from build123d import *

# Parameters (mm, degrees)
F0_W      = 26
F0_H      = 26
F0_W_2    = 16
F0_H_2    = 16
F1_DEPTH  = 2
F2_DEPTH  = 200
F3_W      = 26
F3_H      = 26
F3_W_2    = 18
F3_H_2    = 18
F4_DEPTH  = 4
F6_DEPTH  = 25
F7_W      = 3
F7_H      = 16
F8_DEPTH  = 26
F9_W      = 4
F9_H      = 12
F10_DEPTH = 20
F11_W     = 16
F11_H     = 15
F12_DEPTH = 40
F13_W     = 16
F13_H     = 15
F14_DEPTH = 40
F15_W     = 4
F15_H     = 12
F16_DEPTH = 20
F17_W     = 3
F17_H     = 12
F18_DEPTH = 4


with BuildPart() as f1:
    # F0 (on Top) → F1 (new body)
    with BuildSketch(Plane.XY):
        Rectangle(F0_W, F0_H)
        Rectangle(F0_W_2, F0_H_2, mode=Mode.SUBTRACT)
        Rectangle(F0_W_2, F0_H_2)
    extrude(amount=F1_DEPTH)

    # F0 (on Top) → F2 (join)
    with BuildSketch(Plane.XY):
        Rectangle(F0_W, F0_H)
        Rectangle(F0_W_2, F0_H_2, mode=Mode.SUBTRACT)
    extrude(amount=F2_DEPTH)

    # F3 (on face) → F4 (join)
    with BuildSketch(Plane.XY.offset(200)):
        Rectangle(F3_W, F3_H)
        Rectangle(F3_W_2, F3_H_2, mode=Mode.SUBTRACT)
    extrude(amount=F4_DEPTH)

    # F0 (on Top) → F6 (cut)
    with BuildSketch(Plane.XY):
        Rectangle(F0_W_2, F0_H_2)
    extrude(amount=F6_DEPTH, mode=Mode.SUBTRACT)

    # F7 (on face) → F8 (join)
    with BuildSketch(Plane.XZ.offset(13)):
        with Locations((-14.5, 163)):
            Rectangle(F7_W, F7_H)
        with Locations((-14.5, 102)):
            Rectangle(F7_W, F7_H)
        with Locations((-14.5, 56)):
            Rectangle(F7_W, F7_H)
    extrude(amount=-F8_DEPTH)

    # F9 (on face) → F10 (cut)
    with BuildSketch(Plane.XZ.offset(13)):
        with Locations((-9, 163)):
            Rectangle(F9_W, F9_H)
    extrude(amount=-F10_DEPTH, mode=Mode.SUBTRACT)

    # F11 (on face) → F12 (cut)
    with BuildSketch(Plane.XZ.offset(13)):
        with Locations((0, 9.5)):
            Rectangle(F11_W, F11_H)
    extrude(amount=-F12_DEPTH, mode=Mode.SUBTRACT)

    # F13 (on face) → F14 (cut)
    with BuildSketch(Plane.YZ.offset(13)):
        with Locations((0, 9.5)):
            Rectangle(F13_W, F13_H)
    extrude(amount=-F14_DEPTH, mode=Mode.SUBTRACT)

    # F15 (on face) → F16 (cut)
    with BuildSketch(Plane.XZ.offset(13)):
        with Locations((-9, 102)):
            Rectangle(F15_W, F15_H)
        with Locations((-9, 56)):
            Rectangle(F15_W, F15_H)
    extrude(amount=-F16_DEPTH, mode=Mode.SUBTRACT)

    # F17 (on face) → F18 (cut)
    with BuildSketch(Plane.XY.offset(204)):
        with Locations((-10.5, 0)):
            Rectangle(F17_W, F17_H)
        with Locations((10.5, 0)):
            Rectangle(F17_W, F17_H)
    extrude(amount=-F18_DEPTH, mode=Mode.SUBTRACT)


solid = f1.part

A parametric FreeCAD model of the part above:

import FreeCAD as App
import Part
import Sketcher

V = App.Vector


def add_polygon(sketch, points):
    """Adds a closed chain of lines whose ends are joined by coincident constraints."""
    first, n = sketch.GeometryCount, len(points)
    for a, b in zip(points, points[1:] + points[:1]):
        sketch.addGeometry(Part.LineSegment(App.Vector(*a, 0), App.Vector(*b, 0)), False)
    for i in range(n):
        sketch.addConstraint(Sketcher.Constraint("Coincident", first + i, 2, first + (i + 1) % n, 1))

doc = App.newDocument("Part")
params = doc.addObject("Spreadsheet::Sheet", "Params")
for row, (alias, value) in enumerate([
    ("sketch1_width", "26 mm"),
    ("pad1_length", "2 mm"),
    ("sketch2_width", "26 mm"),
    ("sketch2_width2", "16 mm"),
    ("pad2_length", "200 mm"),
    ("sketch3_width", "26 mm"),
    ("sketch3_width2", "18 mm"),
    ("pad3_length", "4 mm"),
    ("sketch4_width", "16 mm"),
    ("pocket1_length", "25 mm"),
    ("sketch5_width", "3 mm"),
    ("sketch5_height", "16 mm"),
    ("pad4_length", "26 mm"),
    ("sketch6_width", "4 mm"),
    ("sketch6_height", "12 mm"),
    ("pocket2_length", "20 mm"),
    ("sketch7_width", "16 mm"),
    ("sketch7_height", "15 mm"),
    ("pocket3_length", "40 mm"),
    ("sketch8_width", "16 mm"),
    ("sketch8_height", "15 mm"),
    ("pocket4_length", "40 mm"),
    ("sketch9_width", "4 mm"),
    ("sketch9_height", "12 mm"),
    ("pocket5_length", "20 mm"),
    ("sketch10_width", "3 mm"),
    ("sketch10_height", "12 mm"),
    ("pocket6_length", "4 mm"),
], start=1):
    params.set(f"A{row}", alias)
    params.set(f"B{row}", "=" + value)
    params.setAlias(f"B{row}", alias)

body = doc.addObject("PartDesign::Body", "Body")

sketch1 = doc.addObject("Sketcher::SketchObject", "Sketch")
body.addObject(sketch1)
sketch1.AttachmentSupport = (doc.XY_Plane, [""])
sketch1.MapMode = "FlatFace"
add_polygon(sketch1, [(-13, 13), (-13, -13), (13, -13), (13, 13)])
sketch1.addConstraint([
    Sketcher.Constraint("Vertical", 0),
    Sketcher.Constraint("Horizontal", 1),
    Sketcher.Constraint("Vertical", 2),
    Sketcher.Constraint("Horizontal", 3),
    Sketcher.Constraint("Symmetric", 0, 2, 2, 2, -1, 1),
    Sketcher.Constraint("Equal", 3, 0),
    Sketcher.Constraint("DistanceX", 1, 1, 1, 2, 26.0),
])
sketch1.setExpression("Constraints[10]", "Params.sketch1_width")
pad1 = doc.addObject("PartDesign::Pad", "Pad")
body.addObject(pad1)
pad1.Profile = sketch1
pad1.setExpression("Length", "Params.pad1_length")

sketch2 = doc.addObject("Sketcher::SketchObject", "Sketch001")
body.addObject(sketch2)
sketch2.AttachmentSupport = (doc.XY_Plane, [""])
sketch2.MapMode = "FlatFace"
add_polygon(sketch2, [(-13, 13), (-13, -13), (13, -13), (13, 13)])
add_polygon(sketch2, [(8, -8), (-8, -8), (-8, 8), (8, 8)])
sketch2.addConstraint([
    Sketcher.Constraint("Vertical", 0),
    Sketcher.Constraint("Horizontal", 1),
    Sketcher.Constraint("Vertical", 2),
    Sketcher.Constraint("Horizontal", 3),
    Sketcher.Constraint("Horizontal", 4),
    Sketcher.Constraint("Vertical", 5),
    Sketcher.Constraint("Horizontal", 6),
    Sketcher.Constraint("Vertical", 7),
    Sketcher.Constraint("Symmetric", 0, 2, 2, 2, -1, 1),
    Sketcher.Constraint("Symmetric", 4, 2, 6, 2, -1, 1),
    Sketcher.Constraint("Equal", 3, 0),
    Sketcher.Constraint("Equal", 6, 5),
    Sketcher.Constraint("DistanceX", 1, 1, 1, 2, 26.0),
    Sketcher.Constraint("DistanceX", 4, 2, 4, 1, 16.0),
])
sketch2.setExpression("Constraints[20]", "Params.sketch2_width")
sketch2.setExpression("Constraints[21]", "Params.sketch2_width2")
pad2 = doc.addObject("PartDesign::Pad", "Pad001")
body.addObject(pad2)
pad2.Profile = sketch2
pad2.setExpression("Length", "Params.pad2_length")

sketch3 = doc.addObject("Sketcher::SketchObject", "Sketch002")
body.addObject(sketch3)
sketch3.AttachmentSupport = (doc.XY_Plane, [""])
sketch3.MapMode = "FlatFace"
sketch3.AttachmentOffset = App.Placement(V(0, 0, 200), App.Rotation())
add_polygon(sketch3, [(-13, 13), (-13, -13), (13, -13), (13, 13)])
add_polygon(sketch3, [(9, -9), (-9, -9), (-9, 9), (9, 9)])
sketch3.addConstraint([
    Sketcher.Constraint("Vertical", 0),
    Sketcher.Constraint("Horizontal", 1),
    Sketcher.Constraint("Vertical", 2),
    Sketcher.Constraint("Horizontal", 3),
    Sketcher.Constraint("Horizontal", 4),
    Sketcher.Constraint("Vertical", 5),
    Sketcher.Constraint("Horizontal", 6),
    Sketcher.Constraint("Vertical", 7),
    Sketcher.Constraint("Symmetric", 0, 2, 2, 2, -1, 1),
    Sketcher.Constraint("Symmetric", 4, 2, 6, 2, -1, 1),
    Sketcher.Constraint("Equal", 3, 0),
    Sketcher.Constraint("Equal", 6, 5),
    Sketcher.Constraint("DistanceX", 1, 1, 1, 2, 26.0),
    Sketcher.Constraint("DistanceX", 4, 2, 4, 1, 18.0),
])
sketch3.setExpression("Constraints[20]", "Params.sketch3_width")
sketch3.setExpression("Constraints[21]", "Params.sketch3_width2")
pad3 = doc.addObject("PartDesign::Pad", "Pad002")
body.addObject(pad3)
pad3.Profile = sketch3
pad3.setExpression("Length", "Params.pad3_length")

sketch4 = doc.addObject("Sketcher::SketchObject", "Sketch003")
body.addObject(sketch4)
sketch4.AttachmentSupport = (doc.XY_Plane, [""])
sketch4.MapMode = "FlatFace"
add_polygon(sketch4, [(-8, 8), (-8, -8), (8, -8), (8, 8)])
sketch4.addConstraint([
    Sketcher.Constraint("Vertical", 0),
    Sketcher.Constraint("Horizontal", 1),
    Sketcher.Constraint("Vertical", 2),
    Sketcher.Constraint("Horizontal", 3),
    Sketcher.Constraint("Symmetric", 0, 2, 2, 2, -1, 1),
    Sketcher.Constraint("Equal", 3, 0),
    Sketcher.Constraint("DistanceX", 1, 1, 1, 2, 16.0),
])
sketch4.setExpression("Constraints[10]", "Params.sketch4_width")
pocket1 = doc.addObject("PartDesign::Pocket", "Pocket")
body.addObject(pocket1)
pocket1.Profile = sketch4
pocket1.setExpression("Length", "Params.pocket1_length")
pocket1.Reversed = True

sketch5 = doc.addObject("Sketcher::SketchObject", "Sketch004")
body.addObject(sketch5)
sketch5.AttachmentSupport = (doc.XZ_Plane, [""])
sketch5.MapMode = "FlatFace"
sketch5.AttachmentOffset = App.Placement(V(0, 0, 13), App.Rotation())
add_polygon(sketch5, [(-16, 171), (-16, 155), (-13, 155), (-13, 171)])
add_polygon(sketch5, [(-16, 110), (-16, 94), (-13, 94), (-13, 110)])
add_polygon(sketch5, [(-16, 64), (-16, 48), (-13, 48), (-13, 64)])
sketch5.addConstraint([
    Sketcher.Constraint("Vertical", 0),
    Sketcher.Constraint("Horizontal", 1),
    Sketcher.Constraint("Vertical", 2),
    Sketcher.Constraint("Horizontal", 3),
    Sketcher.Constraint("Vertical", 4),
    Sketcher.Constraint("Horizontal", 5),
    Sketcher.Constraint("Vertical", 6),
    Sketcher.Constraint("Horizontal", 7),
    Sketcher.Constraint("Vertical", 8),
    Sketcher.Constraint("Horizontal", 9),
    Sketcher.Constraint("Vertical", 10),
    Sketcher.Constraint("Horizontal", 11),
    Sketcher.Constraint("Vertical", 3, 2, 4, 2),
    Sketcher.Constraint("Vertical", 2, 2, 5, 2),
    Sketcher.Constraint("Vertical", 7, 2, 8, 2),
    Sketcher.Constraint("Vertical", 6, 2, 9, 2),
    Sketcher.Constraint("Equal", 2, 4),
    Sketcher.Constraint("Equal", 6, 8),
    Sketcher.Constraint("DistanceX", 1, 1, 1, 2, 3.0),
    Sketcher.Constraint("DistanceY", 0, 2, 0, 1, 16.0),
    Sketcher.Constraint("DistanceX", 0, 2, -1, 1, 16.0),
    Sketcher.Constraint("DistanceY", -1, 1, 0, 2, 155.0),
    Sketcher.Constraint("DistanceY", -1, 1, 4, 2, 94.0),
    Sketcher.Constraint("DistanceY", -1, 1, 8, 2, 48.0),
])
sketch5.setExpression("Constraints[30]", "Params.sketch5_width")
sketch5.setExpression("Constraints[31]", "Params.sketch5_height")
pad4 = doc.addObject("PartDesign::Pad", "Pad003")
body.addObject(pad4)
pad4.Profile = sketch5
pad4.setExpression("Length", "Params.pad4_length")
pad4.Reversed = True

sketch6 = doc.addObject("Sketcher::SketchObject", "Sketch005")
body.addObject(sketch6)
sketch6.AttachmentSupport = (doc.XZ_Plane, [""])
sketch6.MapMode = "FlatFace"
sketch6.AttachmentOffset = App.Placement(V(0, 0, 13), App.Rotation())
add_polygon(sketch6, [(-11, 169), (-11, 157), (-7, 157), (-7, 169)])
sketch6.addConstraint([
    Sketcher.Constraint("Vertical", 0),
    Sketcher.Constraint("Horizontal", 1),
    Sketcher.Constraint("Vertical", 2),
    Sketcher.Constraint("Horizontal", 3),
    Sketcher.Constraint("DistanceX", 1, 1, 1, 2, 4.0),
    Sketcher.Constraint("DistanceY", 0, 2, 0, 1, 12.0),
    Sketcher.Constraint("DistanceX", 0, 2, -1, 1, 11.0),
    Sketcher.Constraint("DistanceY", -1, 1, 0, 2, 157.0),
])
sketch6.setExpression("Constraints[8]", "Params.sketch6_width")
sketch6.setExpression("Constraints[9]", "Params.sketch6_height")
pocket2 = doc.addObject("PartDesign::Pocket", "Pocket001")
body.addObject(pocket2)
pocket2.Profile = sketch6
pocket2.setExpression("Length", "Params.pocket2_length")

sketch7 = doc.addObject("Sketcher::SketchObject", "Sketch006")
body.addObject(sketch7)
sketch7.AttachmentSupport = (doc.XZ_Plane, [""])
sketch7.MapMode = "FlatFace"
sketch7.AttachmentOffset = App.Placement(V(0, 0, 13), App.Rotation())
add_polygon(sketch7, [(-8, 17), (-8, 2), (8, 2), (8, 17)])
sketch7.addConstraint([
    Sketcher.Constraint("Vertical", 0),
    Sketcher.Constraint("Horizontal", 1),
    Sketcher.Constraint("Vertical", 2),
    Sketcher.Constraint("Horizontal", 3),
    Sketcher.Constraint("DistanceX", 1, 1, 1, 2, 16.0),
    Sketcher.Constraint("DistanceY", 0, 2, 0, 1, 15.0),
    Sketcher.Constraint("DistanceX", 0, 2, -1, 1, 8.0),
    Sketcher.Constraint("DistanceY", -1, 1, 0, 2, 2.0),
])
sketch7.setExpression("Constraints[8]", "Params.sketch7_width")
sketch7.setExpression("Constraints[9]", "Params.sketch7_height")
pocket3 = doc.addObject("PartDesign::Pocket", "Pocket002")
body.addObject(pocket3)
pocket3.Profile = sketch7
pocket3.setExpression("Length", "Params.pocket3_length")

sketch8 = doc.addObject("Sketcher::SketchObject", "Sketch007")
body.addObject(sketch8)
sketch8.AttachmentSupport = (doc.YZ_Plane, [""])
sketch8.MapMode = "FlatFace"
sketch8.AttachmentOffset = App.Placement(V(0, 0, 13), App.Rotation())
add_polygon(sketch8, [(-8, 17), (-8, 2), (8, 2), (8, 17)])
sketch8.addConstraint([
    Sketcher.Constraint("Vertical", 0),
    Sketcher.Constraint("Horizontal", 1),
    Sketcher.Constraint("Vertical", 2),
    Sketcher.Constraint("Horizontal", 3),
    Sketcher.Constraint("DistanceX", 1, 1, 1, 2, 16.0),
    Sketcher.Constraint("DistanceY", 0, 2, 0, 1, 15.0),
    Sketcher.Constraint("DistanceX", 0, 2, -1, 1, 8.0),
    Sketcher.Constraint("DistanceY", -1, 1, 0, 2, 2.0),
])
sketch8.setExpression("Constraints[8]", "Params.sketch8_width")
sketch8.setExpression("Constraints[9]", "Params.sketch8_height")
pocket4 = doc.addObject("PartDesign::Pocket", "Pocket003")
body.addObject(pocket4)
pocket4.Profile = sketch8
pocket4.setExpression("Length", "Params.pocket4_length")

sketch9 = doc.addObject("Sketcher::SketchObject", "Sketch008")
body.addObject(sketch9)
sketch9.AttachmentSupport = (doc.XZ_Plane, [""])
sketch9.MapMode = "FlatFace"
sketch9.AttachmentOffset = App.Placement(V(0, 0, 13), App.Rotation())
add_polygon(sketch9, [(-11, 108), (-11, 96), (-7, 96), (-7, 108)])
add_polygon(sketch9, [(-11, 62), (-11, 50), (-7, 50), (-7, 62)])
sketch9.addConstraint([
    Sketcher.Constraint("Vertical", 0),
    Sketcher.Constraint("Horizontal", 1),
    Sketcher.Constraint("Vertical", 2),
    Sketcher.Constraint("Horizontal", 3),
    Sketcher.Constraint("Vertical", 4),
    Sketcher.Constraint("Horizontal", 5),
    Sketcher.Constraint("Vertical", 6),
    Sketcher.Constraint("Horizontal", 7),
    Sketcher.Constraint("Vertical", 3, 2, 4, 2),
    Sketcher.Constraint("Vertical", 2, 2, 5, 2),
    Sketcher.Constraint("Equal", 2, 4),
    Sketcher.Constraint("DistanceX", 1, 1, 1, 2, 4.0),
    Sketcher.Constraint("DistanceY", 0, 2, 0, 1, 12.0),
    Sketcher.Constraint("DistanceX", 0, 2, -1, 1, 11.0),
    Sketcher.Constraint("DistanceY", -1, 1, 0, 2, 96.0),
    Sketcher.Constraint("DistanceY", -1, 1, 4, 2, 50.0),
])
sketch9.setExpression("Constraints[19]", "Params.sketch9_width")
sketch9.setExpression("Constraints[20]", "Params.sketch9_height")
pocket5 = doc.addObject("PartDesign::Pocket", "Pocket004")
body.addObject(pocket5)
pocket5.Profile = sketch9
pocket5.setExpression("Length", "Params.pocket5_length")

sketch10 = doc.addObject("Sketcher::SketchObject", "Sketch009")
body.addObject(sketch10)
sketch10.AttachmentSupport = (doc.XY_Plane, [""])
sketch10.MapMode = "FlatFace"
sketch10.AttachmentOffset = App.Placement(V(0, 0, 204), App.Rotation())
add_polygon(sketch10, [(-12, 6), (-12, -6), (-9, -6), (-9, 6)])
add_polygon(sketch10, [(9, 6), (9, -6), (12, -6), (12, 6)])
sketch10.addConstraint([
    Sketcher.Constraint("Vertical", 0),
    Sketcher.Constraint("Horizontal", 1),
    Sketcher.Constraint("Vertical", 2),
    Sketcher.Constraint("Horizontal", 3),
    Sketcher.Constraint("Vertical", 4),
    Sketcher.Constraint("Horizontal", 5),
    Sketcher.Constraint("Vertical", 6),
    Sketcher.Constraint("Horizontal", 7),
    Sketcher.Constraint("Symmetric", 2, 2, 4, 2, -1, 1),
    Sketcher.Constraint("Symmetric", 0, 2, 6, 2, -1, 1),
    Sketcher.Constraint("Horizontal", 1, 2, 4, 2),
    Sketcher.Constraint("DistanceX", 1, 1, 1, 2, 3.0),
    Sketcher.Constraint("DistanceY", 0, 2, 0, 1, 12.0),
    Sketcher.Constraint("DistanceX", 0, 2, -1, 1, 12.0),
])
sketch10.setExpression("Constraints[19]", "Params.sketch10_width")
sketch10.setExpression("Constraints[20]", "Params.sketch10_height")
pocket6 = doc.addObject("PartDesign::Pocket", "Pocket005")
body.addObject(pocket6)
pocket6.Profile = sketch10
pocket6.setExpression("Length", "Params.pocket6_length")

doc.recompute()
